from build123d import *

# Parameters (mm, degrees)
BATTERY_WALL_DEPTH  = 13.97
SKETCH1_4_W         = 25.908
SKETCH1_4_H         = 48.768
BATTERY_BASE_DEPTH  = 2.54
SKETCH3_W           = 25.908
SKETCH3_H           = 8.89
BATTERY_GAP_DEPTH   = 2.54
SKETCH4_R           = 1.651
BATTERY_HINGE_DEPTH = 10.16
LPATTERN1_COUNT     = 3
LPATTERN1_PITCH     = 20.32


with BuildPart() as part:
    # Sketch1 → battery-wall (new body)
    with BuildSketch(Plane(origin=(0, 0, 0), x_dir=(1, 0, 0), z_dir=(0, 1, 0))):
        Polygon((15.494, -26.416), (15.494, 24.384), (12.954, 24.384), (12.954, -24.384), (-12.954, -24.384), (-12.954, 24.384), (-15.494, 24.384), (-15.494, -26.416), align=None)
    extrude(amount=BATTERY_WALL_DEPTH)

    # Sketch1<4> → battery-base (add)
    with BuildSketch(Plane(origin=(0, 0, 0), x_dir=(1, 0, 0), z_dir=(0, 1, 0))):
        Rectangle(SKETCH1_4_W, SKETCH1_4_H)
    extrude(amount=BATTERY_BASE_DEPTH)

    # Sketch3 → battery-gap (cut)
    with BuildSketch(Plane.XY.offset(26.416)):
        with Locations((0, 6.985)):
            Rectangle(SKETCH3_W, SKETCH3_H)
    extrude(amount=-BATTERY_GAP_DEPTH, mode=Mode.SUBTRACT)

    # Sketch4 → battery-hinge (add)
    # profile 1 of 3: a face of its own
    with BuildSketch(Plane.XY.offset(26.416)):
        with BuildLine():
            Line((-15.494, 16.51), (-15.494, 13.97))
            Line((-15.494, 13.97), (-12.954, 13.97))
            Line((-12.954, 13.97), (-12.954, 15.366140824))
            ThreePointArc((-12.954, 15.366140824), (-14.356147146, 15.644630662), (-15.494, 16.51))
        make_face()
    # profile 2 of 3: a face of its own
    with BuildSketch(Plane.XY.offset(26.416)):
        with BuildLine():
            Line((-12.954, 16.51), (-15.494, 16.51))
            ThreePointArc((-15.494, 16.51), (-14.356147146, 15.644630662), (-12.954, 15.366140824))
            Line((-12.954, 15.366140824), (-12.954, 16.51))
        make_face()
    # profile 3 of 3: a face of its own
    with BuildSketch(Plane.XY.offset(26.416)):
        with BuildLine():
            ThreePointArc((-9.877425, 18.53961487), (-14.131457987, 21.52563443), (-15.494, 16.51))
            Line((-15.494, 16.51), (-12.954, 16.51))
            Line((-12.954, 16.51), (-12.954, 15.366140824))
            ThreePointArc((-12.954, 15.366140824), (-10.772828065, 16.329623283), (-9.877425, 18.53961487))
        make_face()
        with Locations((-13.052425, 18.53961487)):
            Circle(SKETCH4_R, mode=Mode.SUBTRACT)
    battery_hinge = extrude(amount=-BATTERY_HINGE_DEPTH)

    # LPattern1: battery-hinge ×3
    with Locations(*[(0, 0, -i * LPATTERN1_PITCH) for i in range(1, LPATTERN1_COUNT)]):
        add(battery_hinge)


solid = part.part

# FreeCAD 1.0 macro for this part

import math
import FreeCAD as App
import Part
import Sketcher

V = App.Vector
Q = App.Units.Quantity


def add_polygon(sketch, points):
    """Adds a closed chain of lines whose ends are joined by coincident constraints."""
    first, n = sketch.GeometryCount, len(points)
    for a, b in zip(points, points[1:] + points[:1]):
        sketch.addGeometry(Part.LineSegment(App.Vector(*a, 0), App.Vector(*b, 0)), False)
    for i in range(n):
        sketch.addConstraint(Sketcher.Constraint("Coincident", first + i, 2, first + (i + 1) % n, 1))

doc = App.newDocument("Part")
body = doc.addObject("PartDesign::Body", "Body")

sketch1 = body.newObject("Sketcher::SketchObject", "Sketch")
sketch1.AttachmentSupport = (doc.getObject("XZ_Plane"), [""])
sketch1.MapMode = "FlatFace"
add_polygon(sketch1, [(15.5, 26.4), (15.5, -24.4), (13, -24.4), (13, 24.4), (-13, 24.4), (-13, -24.4), (-15.5, -24.4), (-15.5, 26.4)])
sketch1.addConstraint(Sketcher.Constraint("Vertical", 0))
sketch1.addConstraint(Sketcher.Constraint("Horizontal", 1))
sketch1.addConstraint(Sketcher.Constraint("Vertical", 2))
sketch1.addConstraint(Sketcher.Constraint("Horizontal", 3))
sketch1.addConstraint(Sketcher.Constraint("Vertical", 4))
sketch1.addConstraint(Sketcher.Constraint("Horizontal", 5))
sketch1.addConstraint(Sketcher.Constraint("Vertical", 6))
sketch1.addConstraint(Sketcher.Constraint("Horizontal", 7))
sketch1.addConstraint(Sketcher.Constraint("Symmetric", 1, 2, 3, 2, -1, 1))
sketch1.addConstraint(Sketcher.Constraint("Symmetric", 0, 2, 5, 2, -2))
sketch1.addConstraint(Sketcher.Constraint("DistanceY", 0, 2, 0, 1, Q("2 in")))
sketch1.addConstraint(Sketcher.Constraint("DistanceX", 1, 2, 1, 1, Q("0.1 in")))
sketch1.addConstraint(Sketcher.Constraint("DistanceX", 3, 2, 3, 1, Q("1.02 in")))
sketch1.addConstraint(Sketcher.Constraint("DistanceY", 2, 1, 2, 2, Q("1.92 in")))
pad1 = body.newObject("PartDesign::Pad", "Pad")
pad1.Profile = sketch1
pad1.Length = Q("0.55 in")
pad1.Reversed = True

sketch2 = body.newObject("Sketcher::SketchObject", "Sketch001")
sketch2.AttachmentSupport = (doc.getObject("XZ_Plane"), [""])
sketch2.MapMode = "FlatFace"
add_polygon(sketch2, [(-13, -24), (-13, 24), (13, 24), (13, -24)])
sketch2.addConstraint(Sketcher.Constraint("Vertical", 0))
sketch2.addConstraint(Sketcher.Constraint("Horizontal", 1))
sketch2.addConstraint(Sketcher.Constraint("Vertical", 2))
sketch2.addConstraint(Sketcher.Constraint("Horizontal", 3))
sketch2.addConstraint(Sketcher.Constraint("Symmetric", 0, 2, 2, 2, -1, 1))
sketch2.addConstraint(Sketcher.Constraint("DistanceX", 1, 1, 1, 2, Q("1.02 in")))
sketch2.addConstraint(Sketcher.Constraint("DistanceY", 0, 1, 0, 2, Q("1.92 in")))
pad2 = body.newObject("PartDesign::Pad", "Pad001")
pad2.Profile = sketch2
pad2.Length = Q("0.1 in")
pad2.Reversed = True

sketch3 = body.newObject("Sketcher::SketchObject", "Sketch002")
sketch3.AttachmentSupport = (doc.getObject("XY_Plane"), [""])
sketch3.MapMode = "FlatFace"
sketch3.AttachmentOffset = App.Placement(V(0, 0, 1.04 * 25.4), App.Rotation())
add_polygon(sketch3, [(-13, 11), (-13, 3), (13, 3), (13, 11)])
sketch3.addConstraint(Sketcher.Constraint("Vertical", 0))
sketch3.addConstraint(Sketcher.Constraint("Horizontal", 1))
sketch3.addConstraint(Sketcher.Constraint("Vertical", 2))
sketch3.addConstraint(Sketcher.Constraint("Horizontal", 3))
sketch3.addConstraint(Sketcher.Constraint("DistanceX", 1, 1, 1, 2, Q("1.02 in")))
sketch3.addConstraint(Sketcher.Constraint("DistanceY", 0, 2, 0, 1, Q("0.35 in")))
sketch3.addConstraint(Sketcher.Constraint("DistanceY", -1, 1, 0, 2, Q("0.1 in")))
sketch3.addConstraint(Sketcher.Constraint("DistanceX", 0, 2, -1, 1, Q("0.51 in")))
pocket1 = body.newObject("PartDesign::Pocket", "Pocket")
pocket1.Profile = sketch3
pocket1.Length = Q("0.1 in")

sketch4 = body.newObject("Sketcher::SketchObject", "Sketch003")
sketch4.AttachmentSupport = (doc.getObject("XY_Plane"), [""])
sketch4.MapMode = "FlatFace"
sketch4.AttachmentOffset = App.Placement(V(0, 0, 1.04 * 25.4), App.Rotation())
sketch4.addGeometry(Part.LineSegment(V(-15.5, 16.5, 0), V(-15.5, 14, 0)), False)
sketch4.addGeometry(Part.LineSegment(V(-15.5, 14, 0), V(-13, 14, 0)), False)
sketch4.addGeometry(Part.LineSegment(V(-13, 14, 0), V(-13, 15.4, 0)), False)
sketch4.addGeometry(Part.ArcOfCircle(Part.Circle(V(-13.1, 18.5, 0), V(0, 0, 1), 3.2), math.radians(-88), math.radians(0)), False)
sketch4.addGeometry(Part.ArcOfCircle(Part.Circle(V(-13.1, 18.5, 0), V(0, 0, 1), 3.2), math.radians(0), math.radians(220)), False)
sketch4.addGeometry(Part.Circle(V(-13.1, 18.5, 0), V(0, 0, 1), 1.7), False)
sketch4.addConstraint(Sketcher.Constraint("Coincident", 0, 2, 1, 1))
sketch4.addConstraint(Sketcher.Constraint("Coincident", 1, 2, 2, 1))
sketch4.addConstraint(Sketcher.Constraint("Coincident", 2, 2, 3, 1))
sketch4.addConstraint(Sketcher.Constraint("Tangent", 3, 2, 4, 1))
sketch4.addConstraint(Sketcher.Constraint("Coincident", 4, 2, 0, 1))
sketch4.addConstraint(Sketcher.Constraint("Vertical", 0))
sketch4.addConstraint(Sketcher.Constraint("Horizontal", 1))
sketch4.addConstraint(Sketcher.Constraint("Vertical", 2))
sketch4.addConstraint(Sketcher.Constraint("Coincident", 5, 3, 3, 3))
sketch4.addConstraint(Sketcher.Constraint("Equal", 3, 4))
sketch4.addConstraint(Sketcher.Constraint("Horizontal", 5, 3, 3, 2))
sketch4.addConstraint(Sketcher.Constraint("Equal", 1, 0))
sketch4.addConstraint(Sketcher.Constraint("Diameter", 5, Q("0.13 in")))
sketch4.addConstraint(Sketcher.Constraint("DistanceX", 1, 1, 1, 2, Q("0.1 in")))
sketch4.addConstraint(Sketcher.Constraint("Radius", 3, Q("0.125 in")))
sketch4.addConstraint(Sketcher.Constraint("DistanceX", 0, 2, -1, 1, Q("0.61 in")))
sketch4.addConstraint(Sketcher.Constraint("DistanceY", -1, 1, 0, 2, Q("0.55 in")))
sketch4.addConstraint(Sketcher.Constraint("DistanceY", 2, 1, 2, 2, Q("1.396141 mm")))
pad3 = body.newObject("PartDesign::Pad", "Pad002")
pad3.Profile = sketch4
pad3.Length = Q("0.4 in")
pad3.Reversed = True
doc.recompute()

linearpattern = body.newObject("PartDesign::LinearPattern", "LinearPattern")
linearpattern.Originals = [pad3]
linearpattern.Direction = (doc.getObject("Z_Axis"), [""])
linearpattern.Mode = "offset"
linearpattern.Offset = Q("0.8 in")
linearpattern.Occurrences = 3
linearpattern.Reversed = True
body.Tip = linearpattern

doc.recompute()
